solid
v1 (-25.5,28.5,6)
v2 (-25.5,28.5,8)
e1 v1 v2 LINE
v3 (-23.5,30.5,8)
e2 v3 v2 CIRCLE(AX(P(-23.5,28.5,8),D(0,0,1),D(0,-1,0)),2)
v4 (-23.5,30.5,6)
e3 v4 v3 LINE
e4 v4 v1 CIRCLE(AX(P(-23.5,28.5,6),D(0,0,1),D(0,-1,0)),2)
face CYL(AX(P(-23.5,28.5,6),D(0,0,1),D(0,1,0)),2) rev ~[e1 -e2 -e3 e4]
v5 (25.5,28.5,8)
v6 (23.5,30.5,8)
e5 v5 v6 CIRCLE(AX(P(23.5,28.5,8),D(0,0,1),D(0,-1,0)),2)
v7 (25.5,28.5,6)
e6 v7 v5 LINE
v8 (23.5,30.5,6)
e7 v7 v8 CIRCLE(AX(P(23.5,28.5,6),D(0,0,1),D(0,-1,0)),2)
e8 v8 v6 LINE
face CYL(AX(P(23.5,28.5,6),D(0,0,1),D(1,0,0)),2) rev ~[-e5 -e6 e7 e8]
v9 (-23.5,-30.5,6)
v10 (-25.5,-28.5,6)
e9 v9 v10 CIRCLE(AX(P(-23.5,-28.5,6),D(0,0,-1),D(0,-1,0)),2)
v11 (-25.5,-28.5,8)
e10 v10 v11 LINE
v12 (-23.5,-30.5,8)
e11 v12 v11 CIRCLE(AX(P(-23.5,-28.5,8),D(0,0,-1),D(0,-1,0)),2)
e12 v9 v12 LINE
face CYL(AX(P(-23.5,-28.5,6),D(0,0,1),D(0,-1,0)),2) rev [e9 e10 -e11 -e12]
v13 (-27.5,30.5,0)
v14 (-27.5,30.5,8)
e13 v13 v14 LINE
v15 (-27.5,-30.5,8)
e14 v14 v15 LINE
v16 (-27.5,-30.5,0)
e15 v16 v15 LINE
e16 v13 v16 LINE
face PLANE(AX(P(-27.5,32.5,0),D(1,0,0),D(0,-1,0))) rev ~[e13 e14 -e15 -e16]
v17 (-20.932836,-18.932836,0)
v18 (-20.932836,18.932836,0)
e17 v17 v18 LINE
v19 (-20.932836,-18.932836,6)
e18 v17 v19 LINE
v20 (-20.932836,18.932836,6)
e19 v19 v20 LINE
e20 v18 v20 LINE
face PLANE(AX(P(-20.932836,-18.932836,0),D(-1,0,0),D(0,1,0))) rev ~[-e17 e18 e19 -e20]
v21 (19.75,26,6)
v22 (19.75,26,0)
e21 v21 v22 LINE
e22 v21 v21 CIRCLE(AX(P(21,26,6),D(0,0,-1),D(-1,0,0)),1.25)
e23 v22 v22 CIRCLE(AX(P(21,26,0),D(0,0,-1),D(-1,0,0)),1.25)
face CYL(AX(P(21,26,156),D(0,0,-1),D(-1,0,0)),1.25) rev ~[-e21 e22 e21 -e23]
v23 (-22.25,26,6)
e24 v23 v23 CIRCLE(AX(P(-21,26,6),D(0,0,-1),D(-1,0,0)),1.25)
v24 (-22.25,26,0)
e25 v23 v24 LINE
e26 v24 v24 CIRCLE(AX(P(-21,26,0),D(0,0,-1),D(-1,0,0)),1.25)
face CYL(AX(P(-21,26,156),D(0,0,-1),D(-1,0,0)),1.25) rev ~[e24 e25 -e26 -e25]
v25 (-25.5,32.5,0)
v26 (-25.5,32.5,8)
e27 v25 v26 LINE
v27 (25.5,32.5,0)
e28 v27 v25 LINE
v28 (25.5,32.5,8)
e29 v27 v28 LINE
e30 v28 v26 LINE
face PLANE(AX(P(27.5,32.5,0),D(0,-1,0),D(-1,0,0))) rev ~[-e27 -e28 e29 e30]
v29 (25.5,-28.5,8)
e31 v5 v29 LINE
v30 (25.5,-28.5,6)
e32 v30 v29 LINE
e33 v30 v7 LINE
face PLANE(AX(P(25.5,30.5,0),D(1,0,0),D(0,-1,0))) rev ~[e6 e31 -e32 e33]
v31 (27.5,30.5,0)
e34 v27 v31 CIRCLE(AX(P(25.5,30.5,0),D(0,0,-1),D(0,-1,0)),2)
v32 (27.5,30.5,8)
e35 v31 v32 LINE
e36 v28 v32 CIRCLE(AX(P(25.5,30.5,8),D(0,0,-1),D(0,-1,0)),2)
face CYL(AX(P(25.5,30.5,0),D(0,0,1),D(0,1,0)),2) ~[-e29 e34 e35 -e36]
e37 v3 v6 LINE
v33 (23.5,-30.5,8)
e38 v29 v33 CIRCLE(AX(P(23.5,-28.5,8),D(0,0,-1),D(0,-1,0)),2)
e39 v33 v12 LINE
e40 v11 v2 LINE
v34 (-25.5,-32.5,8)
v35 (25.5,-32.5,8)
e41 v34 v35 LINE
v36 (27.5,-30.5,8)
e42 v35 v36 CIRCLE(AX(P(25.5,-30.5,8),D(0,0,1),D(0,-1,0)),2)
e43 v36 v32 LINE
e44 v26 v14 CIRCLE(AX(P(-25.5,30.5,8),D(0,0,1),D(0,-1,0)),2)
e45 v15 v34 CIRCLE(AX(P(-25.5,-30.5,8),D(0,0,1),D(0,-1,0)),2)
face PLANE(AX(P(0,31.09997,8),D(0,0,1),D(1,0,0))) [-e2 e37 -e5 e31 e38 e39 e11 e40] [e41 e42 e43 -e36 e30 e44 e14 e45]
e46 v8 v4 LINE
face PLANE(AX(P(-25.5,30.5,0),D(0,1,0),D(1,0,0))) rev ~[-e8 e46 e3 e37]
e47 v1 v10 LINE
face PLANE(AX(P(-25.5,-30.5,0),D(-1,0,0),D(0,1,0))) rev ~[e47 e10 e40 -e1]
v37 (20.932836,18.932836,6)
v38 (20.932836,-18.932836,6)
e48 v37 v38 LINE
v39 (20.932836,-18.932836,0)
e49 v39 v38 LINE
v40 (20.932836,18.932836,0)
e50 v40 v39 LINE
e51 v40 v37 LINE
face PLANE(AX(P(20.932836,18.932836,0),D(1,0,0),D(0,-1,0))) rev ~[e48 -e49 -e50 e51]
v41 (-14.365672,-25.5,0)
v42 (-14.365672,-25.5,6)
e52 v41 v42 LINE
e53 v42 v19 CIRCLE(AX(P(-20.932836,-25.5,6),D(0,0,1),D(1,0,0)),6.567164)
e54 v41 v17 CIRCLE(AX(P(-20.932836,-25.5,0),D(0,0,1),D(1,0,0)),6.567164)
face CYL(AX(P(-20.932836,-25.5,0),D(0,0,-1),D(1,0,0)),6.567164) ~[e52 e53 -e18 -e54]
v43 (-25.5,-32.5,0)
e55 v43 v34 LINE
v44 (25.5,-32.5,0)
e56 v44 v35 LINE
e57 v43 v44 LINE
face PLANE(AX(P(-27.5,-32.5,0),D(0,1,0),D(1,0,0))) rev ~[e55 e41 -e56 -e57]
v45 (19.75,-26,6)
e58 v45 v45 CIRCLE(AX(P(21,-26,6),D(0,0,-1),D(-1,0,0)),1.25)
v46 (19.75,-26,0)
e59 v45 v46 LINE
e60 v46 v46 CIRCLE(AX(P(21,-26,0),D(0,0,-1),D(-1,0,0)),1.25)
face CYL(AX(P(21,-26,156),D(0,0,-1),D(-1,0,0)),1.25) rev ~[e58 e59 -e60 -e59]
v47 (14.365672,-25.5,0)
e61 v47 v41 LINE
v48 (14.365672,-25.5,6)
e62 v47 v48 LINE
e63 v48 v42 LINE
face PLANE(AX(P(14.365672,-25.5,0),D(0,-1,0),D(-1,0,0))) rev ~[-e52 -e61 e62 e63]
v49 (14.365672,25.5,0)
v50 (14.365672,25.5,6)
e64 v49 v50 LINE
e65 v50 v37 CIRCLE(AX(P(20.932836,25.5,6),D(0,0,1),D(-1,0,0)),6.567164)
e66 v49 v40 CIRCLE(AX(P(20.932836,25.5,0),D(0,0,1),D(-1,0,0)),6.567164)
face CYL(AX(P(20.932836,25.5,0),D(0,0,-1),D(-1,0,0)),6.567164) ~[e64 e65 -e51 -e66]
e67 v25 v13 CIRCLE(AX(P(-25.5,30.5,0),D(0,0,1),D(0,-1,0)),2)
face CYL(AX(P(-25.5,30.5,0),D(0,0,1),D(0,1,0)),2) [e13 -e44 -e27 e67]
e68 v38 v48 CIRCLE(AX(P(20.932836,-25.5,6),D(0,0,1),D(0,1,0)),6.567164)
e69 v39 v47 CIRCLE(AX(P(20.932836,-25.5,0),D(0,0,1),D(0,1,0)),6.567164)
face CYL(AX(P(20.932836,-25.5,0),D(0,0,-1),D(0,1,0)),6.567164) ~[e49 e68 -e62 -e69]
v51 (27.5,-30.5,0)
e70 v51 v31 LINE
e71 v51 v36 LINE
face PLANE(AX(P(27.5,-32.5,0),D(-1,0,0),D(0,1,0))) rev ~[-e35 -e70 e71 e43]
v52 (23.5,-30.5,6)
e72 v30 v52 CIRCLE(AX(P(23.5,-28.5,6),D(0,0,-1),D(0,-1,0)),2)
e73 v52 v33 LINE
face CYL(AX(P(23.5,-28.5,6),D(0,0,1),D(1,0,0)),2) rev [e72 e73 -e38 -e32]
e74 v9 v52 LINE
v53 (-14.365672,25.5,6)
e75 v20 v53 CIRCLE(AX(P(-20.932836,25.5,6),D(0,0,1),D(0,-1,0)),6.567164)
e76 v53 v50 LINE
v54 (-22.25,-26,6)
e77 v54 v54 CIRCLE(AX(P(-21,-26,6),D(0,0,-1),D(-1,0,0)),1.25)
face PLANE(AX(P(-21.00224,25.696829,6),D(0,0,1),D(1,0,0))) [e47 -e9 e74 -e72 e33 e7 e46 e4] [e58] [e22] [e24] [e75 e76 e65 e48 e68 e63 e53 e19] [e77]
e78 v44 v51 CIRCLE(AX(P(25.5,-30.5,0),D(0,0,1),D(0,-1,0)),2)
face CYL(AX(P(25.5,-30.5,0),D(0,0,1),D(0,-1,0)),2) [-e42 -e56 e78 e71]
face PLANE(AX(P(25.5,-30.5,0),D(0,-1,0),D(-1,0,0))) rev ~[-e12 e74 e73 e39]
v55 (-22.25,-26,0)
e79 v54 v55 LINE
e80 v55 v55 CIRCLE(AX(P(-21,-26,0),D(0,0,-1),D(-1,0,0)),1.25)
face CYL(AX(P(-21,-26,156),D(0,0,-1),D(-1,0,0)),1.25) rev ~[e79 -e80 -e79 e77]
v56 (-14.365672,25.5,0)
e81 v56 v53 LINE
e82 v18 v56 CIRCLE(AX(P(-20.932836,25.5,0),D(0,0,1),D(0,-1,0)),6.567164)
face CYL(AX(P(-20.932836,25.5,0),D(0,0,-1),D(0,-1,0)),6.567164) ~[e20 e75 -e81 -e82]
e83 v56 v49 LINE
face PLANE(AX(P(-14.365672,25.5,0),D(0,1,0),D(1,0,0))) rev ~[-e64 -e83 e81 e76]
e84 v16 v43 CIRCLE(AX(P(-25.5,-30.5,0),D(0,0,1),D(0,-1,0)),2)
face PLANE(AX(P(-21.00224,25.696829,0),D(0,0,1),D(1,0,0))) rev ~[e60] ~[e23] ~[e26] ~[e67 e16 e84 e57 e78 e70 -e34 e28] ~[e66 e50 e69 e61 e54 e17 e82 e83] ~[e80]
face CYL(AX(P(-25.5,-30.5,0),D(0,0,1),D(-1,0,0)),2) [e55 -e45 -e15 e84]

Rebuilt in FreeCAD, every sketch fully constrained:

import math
import FreeCAD as App
import Part
import Sketcher
from FreeCAD import Vector


def edges_at(feature, points):
    """Names of the edges that pass closest to the given points."""
    edges = feature.Shape.Edges
    near = lambda p: min(range(len(edges)), key=lambda i: edges[i].distToShape(Part.Vertex(*p))[0])
    return sorted({f"Edge{near(p) + 1}" for p in points})


def add_polygon(sketch, points):
    """Adds a closed chain of lines whose ends are joined by coincident constraints."""
    first, n = sketch.GeometryCount, len(points)
    for a, b in zip(points, points[1:] + points[:1]):
        sketch.addGeometry(Part.LineSegment(App.Vector(*a, 0), App.Vector(*b, 0)), False)
    for i in range(n):
        sketch.addConstraint(Sketcher.Constraint("Coincident", first + i, 2, first + (i + 1) % n, 1))

doc = App.newDocument("Part")
body = doc.addObject("PartDesign::Body", "Body")

# Sketch on XY plane
sketch1 = body.newObject("Sketcher::SketchObject", "Sketch")
sketch1.AttachmentSupport = (doc.getObject("XY_Plane"), [""])
sketch1.MapMode = "FlatFace"
add_polygon(sketch1, [(25.5, 30.5), (-25.5, 30.5), (-25.5, -30.5), (25.5, -30.5)])  # lines 0-3
sketch1.addGeometry(Part.ArcOfCircle(Part.Circle(Vector(-20.932836, -25.5, 0), Vector(0, 0, 1), 6.567164), math.radians(0), math.radians(90)), False)  # 4
sketch1.addGeometry(Part.LineSegment(Vector(-20.932836, -18.932836, 0), Vector(-20.932836, 18.932836, 0)), False)  # 5
sketch1.addGeometry(Part.ArcOfCircle(Part.Circle(Vector(-20.932836, 25.5, 0), Vector(0, 0, 1), 6.567164), math.radians(-90), math.radians(0)), False)  # 6
sketch1.addGeometry(Part.LineSegment(Vector(-14.365672, 25.5, 0), Vector(14.365672, 25.5, 0)), False)  # 7
sketch1.addGeometry(Part.ArcOfCircle(Part.Circle(Vector(20.932836, 25.5, 0), Vector(0, 0, 1), 6.567164), math.radians(180), math.radians(270)), False)  # 8
sketch1.addGeometry(Part.LineSegment(Vector(20.932836, 18.932836, 0), Vector(20.932836, -18.932836, 0)), False)  # 9
sketch1.addGeometry(Part.ArcOfCircle(Part.Circle(Vector(20.932836, -25.5, 0), Vector(0, 0, 1), 6.567164), math.radians(90), math.radians(180)), False)  # 10
sketch1.addGeometry(Part.LineSegment(Vector(14.365672, -25.5, 0), Vector(-14.365672, -25.5, 0)), False)  # 11
sketch1.addConstraint([
    Sketcher.Constraint("Coincident", 4, 2, 5, 1),
    Sketcher.Constraint("Coincident", 5, 2, 6, 1),
    Sketcher.Constraint("Coincident", 6, 2, 7, 1),
    Sketcher.Constraint("Coincident", 7, 2, 8, 1),
    Sketcher.Constraint("Coincident", 8, 2, 9, 1),
    Sketcher.Constraint("Coincident", 9, 2, 10, 1),
    Sketcher.Constraint("Coincident", 10, 2, 11, 1),
    Sketcher.Constraint("Coincident", 11, 2, 4, 1),
    Sketcher.Constraint("Horizontal", 0),
    Sketcher.Constraint("Vertical", 1),
    Sketcher.Constraint("Horizontal", 2),
    Sketcher.Constraint("Vertical", 3),
    Sketcher.Constraint("Vertical", 5),
    Sketcher.Constraint("Horizontal", 7),
    Sketcher.Constraint("Vertical", 9),
    Sketcher.Constraint("Horizontal", 11),
    Sketcher.Constraint("Equal", 4, 6),
    Sketcher.Constraint("Equal", 6, 8),
    Sketcher.Constraint("Equal", 8, 10),
    Sketcher.Constraint("Symmetric", 4, 3, 8, 3, -1, 1),
    Sketcher.Constraint("Symmetric", 6, 3, 10, 3, -1, 1),
    Sketcher.Constraint("Symmetric", 0, 2, 2, 2, -1, 1),
    Sketcher.Constraint("Symmetric", 6, 3, 8, 3, -2),
    Sketcher.Constraint("Horizontal", 8, 3, 6, 2),
    Sketcher.Constraint("Horizontal", 4, 3, 10, 2),
    Sketcher.Constraint("Vertical", 6, 3, 4, 2),
    Sketcher.Constraint("Vertical", 10, 3, 8, 2),
    Sketcher.Constraint("DistanceX", 0, 2, 0, 1, 51.0),
    Sketcher.Constraint("DistanceY", 1, 2, 1, 1, 61.0),
    Sketcher.Constraint("DistanceY", 4, 3, 6, 3, 51.0),
    Sketcher.Constraint("Radius", 4, 6.567164),
    Sketcher.Constraint("DistanceX", 7, 1, 7, 2, 28.731344),
])
pad1 = body.newObject("PartDesign::Pad", "Pad")
pad1.Profile = sketch1
pad1.Length = 6

# Sketch on XY plane
sketch2 = body.newObject("Sketcher::SketchObject", "Sketch001")
sketch2.AttachmentSupport = (doc.getObject("XY_Plane"), [""])
sketch2.MapMode = "FlatFace"
add_polygon(sketch2, [(27.5, 32.5), (-27.5, 32.5), (-27.5, -32.5), (27.5, -32.5)])  # lines 0-3
add_polygon(sketch2, [(25.5, 30.5), (25.5, -30.5), (-25.5, -30.5), (-25.5, 30.5)])  # lines 4-7
sketch2.addConstraint([
    Sketcher.Constraint("Horizontal", 0),
    Sketcher.Constraint("Vertical", 1),
    Sketcher.Constraint("Horizontal", 2),
    Sketcher.Constraint("Vertical", 3),
    Sketcher.Constraint("Vertical", 4),
    Sketcher.Constraint("Horizontal", 5),
    Sketcher.Constraint("Vertical", 6),
    Sketcher.Constraint("Horizontal", 7),
    Sketcher.Constraint("Symmetric", 0, 2, 2, 2, -1, 1),
    Sketcher.Constraint("Symmetric", 4, 2, 6, 2, -1, 1),
    Sketcher.Constraint("DistanceX", 0, 2, 0, 1, 55.0),
    Sketcher.Constraint("DistanceX", 5, 2, 5, 1, 51.0),
    Sketcher.Constraint("DistanceY", 1, 2, 1, 1, 65.0),
    Sketcher.Constraint("DistanceY", 4, 2, 4, 1, 61.0),
])
pad2 = body.newObject("PartDesign::Pad", "Pad001")
pad2.Profile = sketch2
pad2.Length = 8

# Sketch on XY plane
sketch3 = body.newObject("Sketcher::SketchObject", "Sketch002")
sketch3.AttachmentSupport = (doc.getObject("XY_Plane"), [""])
sketch3.MapMode = "FlatFace"
sketch3.AttachmentOffset = App.Placement(Vector(0, 0, 6), App.Rotation())
sketch3.addGeometry([
    Part.Circle(Vector(-21, 26, 0), Vector(0, 0, 1), 1.25),
    Part.Circle(Vector(21, 26, 0), Vector(0, 0, 1), 1.25),
    Part.Circle(Vector(21, -26, 0), Vector(0, 0, 1), 1.25),
    Part.Circle(Vector(-21, -26, 0), Vector(0, 0, 1), 1.25),
], False)
sketch3.addConstraint([
    Sketcher.Constraint("Equal", 0, 1),
    Sketcher.Constraint("Equal", 1, 2),
    Sketcher.Constraint("Equal", 2, 3),
    Sketcher.Constraint("Symmetric", 0, 3, 2, 3, -1, 1),
    Sketcher.Constraint("Symmetric", 1, 3, 3, 3, -1, 1),
    Sketcher.Constraint("Symmetric", 0, 3, 1, 3, -2),
    Sketcher.Constraint("Diameter", 0, 2.5),
    Sketcher.Constraint("DistanceX", 0, 3, -1, 1, 21.0),
    Sketcher.Constraint("DistanceY", -1, 1, 0, 3, 26.0),
])
doc.recompute()
hole = body.newObject("PartDesign::Hole", "Hole")
hole.Profile = sketch3
hole.ThreadType = "None"
hole.Diameter = 2.5
hole.DepthType = "Dimension"
hole.Depth = 150
hole.DrillPoint = "Angled"
hole.DrillPointAngle = 118
doc.recompute()

fillet = body.newObject("PartDesign::Fillet", "Fillet")
fillet.Base = (hole, edges_at(hole, [
    (25.5, 30.5, 7),
    (25.5, -30.5, 7),
    (-25.5, -30.5, 7),
    (-25.5, 30.5, 7),
    (27.5, 32.5, 4),
    (27.5, -32.5, 4),
    (-27.5, -32.5, 4),
    (-27.5, 32.5, 4),
]))
fillet.Radius = 2

doc.recompute()
